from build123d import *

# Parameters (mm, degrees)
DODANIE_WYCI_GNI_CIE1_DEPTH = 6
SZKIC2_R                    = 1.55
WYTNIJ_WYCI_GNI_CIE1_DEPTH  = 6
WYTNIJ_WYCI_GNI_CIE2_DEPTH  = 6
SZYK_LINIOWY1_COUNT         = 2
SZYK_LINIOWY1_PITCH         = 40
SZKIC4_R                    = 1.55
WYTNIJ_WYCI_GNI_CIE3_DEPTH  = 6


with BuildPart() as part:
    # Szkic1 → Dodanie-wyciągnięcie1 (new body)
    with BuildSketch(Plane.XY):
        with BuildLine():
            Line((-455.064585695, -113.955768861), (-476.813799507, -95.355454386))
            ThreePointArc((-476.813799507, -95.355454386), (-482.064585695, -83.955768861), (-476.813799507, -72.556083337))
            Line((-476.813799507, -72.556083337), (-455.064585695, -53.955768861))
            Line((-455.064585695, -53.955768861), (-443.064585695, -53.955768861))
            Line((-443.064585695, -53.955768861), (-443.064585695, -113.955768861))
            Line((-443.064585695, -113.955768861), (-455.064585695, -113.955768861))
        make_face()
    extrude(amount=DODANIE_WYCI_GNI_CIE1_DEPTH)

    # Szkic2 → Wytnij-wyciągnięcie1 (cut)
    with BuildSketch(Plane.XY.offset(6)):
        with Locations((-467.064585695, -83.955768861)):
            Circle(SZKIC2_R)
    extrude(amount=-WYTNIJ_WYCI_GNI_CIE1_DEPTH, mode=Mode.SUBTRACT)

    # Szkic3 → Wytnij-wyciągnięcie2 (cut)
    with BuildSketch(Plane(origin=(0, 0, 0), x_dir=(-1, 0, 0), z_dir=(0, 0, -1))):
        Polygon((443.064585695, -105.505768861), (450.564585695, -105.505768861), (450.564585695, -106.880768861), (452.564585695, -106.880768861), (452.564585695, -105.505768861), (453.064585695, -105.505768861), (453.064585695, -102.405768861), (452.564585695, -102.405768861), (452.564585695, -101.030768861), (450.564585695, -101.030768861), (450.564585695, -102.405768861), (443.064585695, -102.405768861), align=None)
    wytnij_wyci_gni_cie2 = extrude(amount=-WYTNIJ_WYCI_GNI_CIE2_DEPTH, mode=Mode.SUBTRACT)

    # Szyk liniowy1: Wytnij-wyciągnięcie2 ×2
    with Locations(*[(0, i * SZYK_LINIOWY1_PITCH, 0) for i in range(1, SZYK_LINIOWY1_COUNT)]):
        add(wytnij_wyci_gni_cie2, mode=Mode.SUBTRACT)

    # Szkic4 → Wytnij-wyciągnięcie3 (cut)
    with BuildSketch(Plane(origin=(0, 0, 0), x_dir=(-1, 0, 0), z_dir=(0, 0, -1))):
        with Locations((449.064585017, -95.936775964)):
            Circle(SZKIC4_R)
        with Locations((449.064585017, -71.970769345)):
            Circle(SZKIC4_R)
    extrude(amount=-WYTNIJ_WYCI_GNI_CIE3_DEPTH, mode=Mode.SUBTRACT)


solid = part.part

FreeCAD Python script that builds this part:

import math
import FreeCAD as App
import Part
import Sketcher

V = App.Vector

doc = App.newDocument("Part")
params = doc.addObject("Spreadsheet::Sheet", "Params")
for row, (alias, value) in enumerate([
    ("sketch1_radius", "15 mm"),
    ("sketch1_width", "12 mm"),
    ("sketch1_height", "60 mm"),
    ("pad1_length", "6 mm"),
    ("sketch2_diameter", "3.1 mm"),
    ("pocket1_length", "6 mm"),
    ("sketch3_width", "2 mm"),
    ("sketch3_width2", "7.5 mm"),
    ("sketch3_width3", "0.5 mm"),
    ("sketch3_height", "3.1 mm"),
    ("pocket2_length", "6 mm"),
    ("linearpattern_pitch", "40 mm"),
    ("sketch4_diameter", "3.1 mm"),
    ("pocket3_length", "6 mm"),
], start=1):
    params.set(f"A{row}", alias)
    params.set(f"B{row}", "=" + value)
    params.setAlias(f"B{row}", alias)

body = doc.addObject("PartDesign::Body", "Body")

sketch1 = doc.addObject("Sketcher::SketchObject", "Sketch")
body.addObject(sketch1)
sketch1.AttachmentSupport = (doc.XY_Plane, [""])
sketch1.MapMode = "FlatFace"
sketch1.addGeometry(Part.LineSegment(V(-477, -95, 0), V(-455, -114, 0)), False)
sketch1.addGeometry(Part.LineSegment(V(-455, -114, 0), V(-443, -114, 0)), False)
sketch1.addGeometry(Part.LineSegment(V(-443, -114, 0), V(-443, -54, 0)), False)
sketch1.addGeometry(Part.LineSegment(V(-443, -54, 0), V(-455, -54, 0)), False)
sketch1.addGeometry(Part.LineSegment(V(-455, -54, 0), V(-477, -73, 0)), False)
sketch1.addGeometry(Part.ArcOfCircle(Part.Circle(V(-467, -84, 0), V(0, 0, 1), 15), math.radians(131), math.radians(229)), False)
sketch1.addConstraint(Sketcher.Constraint("Coincident", 0, 2, 1, 1))
sketch1.addConstraint(Sketcher.Constraint("Coincident", 1, 2, 2, 1))
sketch1.addConstraint(Sketcher.Constraint("Coincident", 2, 2, 3, 1))
sketch1.addConstraint(Sketcher.Constraint("Coincident", 3, 2, 4, 1))
sketch1.addConstraint(Sketcher.Constraint("Tangent", 4, 2, 5, 1))
sketch1.addConstraint(Sketcher.Constraint("Tangent", 5, 2, 0, 1))
sketch1.addConstraint(Sketcher.Constraint("Horizontal", 1))
sketch1.addConstraint(Sketcher.Constraint("Vertical", 2))
sketch1.addConstraint(Sketcher.Constraint("Horizontal", 3))
sketch1.addConstraint(Sketcher.Constraint("Vertical", 0, 2, 3, 2))
sketch1.addConstraint(Sketcher.Constraint("Vertical", 4, 2, 5, 2))
sketch1.addConstraint(Sketcher.Constraint("Radius", 5, 15.0))
sketch1.addConstraint(Sketcher.Constraint("DistanceX", 1, 1, 1, 2, 12.0))
sketch1.addConstraint(Sketcher.Constraint("DistanceY", 2, 1, 2, 2, 60.0))
sketch1.addConstraint(Sketcher.Constraint("DistanceX", 5, 3, 0, 2, 12.0))
sketch1.addConstraint(Sketcher.Constraint("DistanceX", 4, 2, -1, 1, 476.8138))
sketch1.addConstraint(Sketcher.Constraint("DistanceY", 5, 3, -1, 1, 83.955769))
sketch1.setExpression("Constraints[11]", "Params.sketch1_radius")
sketch1.setExpression("Constraints[12]", "Params.sketch1_width")
sketch1.setExpression("Constraints[13]", "Params.sketch1_height")
pad1 = doc.addObject("PartDesign::Pad", "Pad")
body.addObject(pad1)
pad1.Profile = sketch1
pad1.setExpression("Length", "Params.pad1_length")

sketch2 = doc.addObject("Sketcher::SketchObject", "Sketch001")
body.addObject(sketch2)
sketch2.AttachmentSupport = (doc.XY_Plane, [""])
sketch2.MapMode = "FlatFace"
sketch2.AttachmentOffset = App.Placement(V(0, 0, 6), App.Rotation())
sketch2.addGeometry(Part.Circle(V(-467.1, -84, 0), V(0, 0, 1), 1.6), False)
sketch2.addConstraint(Sketcher.Constraint("Diameter", 0, 3.1))
sketch2.addConstraint(Sketcher.Constraint("DistanceY", 0, 3, -1, 1, 83.955769))
sketch2.addConstraint(Sketcher.Constraint("DistanceX", 0, 3, -1, 1, 467.064586))
sketch2.setExpression("Constraints[0]", "Params.sketch2_diameter")
pocket1 = doc.addObject("PartDesign::Pocket", "Pocket")
body.addObject(pocket1)
pocket1.Profile = sketch2
pocket1.setExpression("Length", "Params.pocket1_length")

sketch3 = doc.addObject("Sketcher::SketchObject", "Sketch002")
body.addObject(sketch3)
sketch3.AttachmentSupport = (doc.XY_Plane, [""])
sketch3.MapMode = "FlatFace"
sketch3.addGeometry(Part.LineSegment(V(-443.1, -105.5, 0), V(-450.6, -105.5, 0)), False)
sketch3.addGeometry(Part.LineSegment(V(-450.6, -105.5, 0), V(-450.6, -106.9, 0)), False)
sketch3.addGeometry(Part.LineSegment(V(-450.6, -106.9, 0), V(-452.6, -106.9, 0)), False)
sketch3.addGeometry(Part.LineSegment(V(-452.6, -106.9, 0), V(-452.6, -105.5, 0)), False)
sketch3.addGeometry(Part.LineSegment(V(-452.6, -105.5, 0), V(-453.1, -105.5, 0)), False)
sketch3.addGeometry(Part.LineSegment(V(-453.1, -105.5, 0), V(-453.1, -102.4, 0)), False)
sketch3.addGeometry(Part.LineSegment(V(-453.1, -102.4, 0), V(-452.6, -102.4, 0)), False)
sketch3.addGeometry(Part.LineSegment(V(-452.6, -102.4, 0), V(-452.6, -101, 0)), False)
sketch3.addGeometry(Part.LineSegment(V(-452.6, -101, 0), V(-450.6, -101, 0)), False)
sketch3.addGeometry(Part.LineSegment(V(-450.6, -101, 0), V(-450.6, -102.4, 0)), False)
sketch3.addGeometry(Part.LineSegment(V(-450.6, -102.4, 0), V(-443.1, -102.4, 0)), False)
sketch3.addGeometry(Part.LineSegment(V(-443.1, -102.4, 0), V(-443.1, -105.5, 0)), False)
sketch3.addConstraint(Sketcher.Constraint("Coincident", 0, 2, 1, 1))
sketch3.addConstraint(Sketcher.Constraint("Coincident", 1, 2, 2, 1))
sketch3.addConstraint(Sketcher.Constraint("Coincident", 2, 2, 3, 1))
sketch3.addConstraint(Sketcher.Constraint("Coincident", 3, 2, 4, 1))
sketch3.addConstraint(Sketcher.Constraint("Coincident", 4, 2, 5, 1))
sketch3.addConstraint(Sketcher.Constraint("Coincident", 5, 2, 6, 1))
sketch3.addConstraint(Sketcher.Constraint("Coincident", 6, 2, 7, 1))
sketch3.addConstraint(Sketcher.Constraint("Coincident", 7, 2, 8, 1))
sketch3.addConstraint(Sketcher.Constraint("Coincident", 8, 2, 9, 1))
sketch3.addConstraint(Sketcher.Constraint("Coincident", 9, 2, 10, 1))
sketch3.addConstraint(Sketcher.Constraint("Coincident", 10, 2, 11, 1))
sketch3.addConstraint(Sketcher.Constraint("Coincident", 11, 2, 0, 1))
sketch3.addConstraint(Sketcher.Constraint("Horizontal", 0))
sketch3.addConstraint(Sketcher.Constraint("Vertical", 1))
sketch3.addConstraint(Sketcher.Constraint("Horizontal", 2))
sketch3.addConstraint(Sketcher.Constraint("Vertical", 3))
sketch3.addConstraint(Sketcher.Constraint("Horizontal", 4))
sketch3.addConstraint(Sketcher.Constraint("Vertical", 5))
sketch3.addConstraint(Sketcher.Constraint("Horizontal", 6))
sketch3.addConstraint(Sketcher.Constraint("Vertical", 7))
sketch3.addConstraint(Sketcher.Constraint("Horizontal", 8))
sketch3.addConstraint(Sketcher.Constraint("Vertical", 9))
sketch3.addConstraint(Sketcher.Constraint("Horizontal", 10))
sketch3.addConstraint(Sketcher.Constraint("Vertical", 11))
sketch3.addConstraint(Sketcher.Constraint("Horizontal", 0, 2, 3, 2))
sketch3.addConstraint(Sketcher.Constraint("Horizontal", 6, 2, 9, 2))
sketch3.addConstraint(Sketcher.Constraint("Vertical", 3, 2, 6, 2))
sketch3.addConstraint(Sketcher.Constraint("Vertical", 1, 2, 8, 2))
sketch3.addConstraint(Sketcher.Constraint("Equal", 3, 7))
sketch3.addConstraint(Sketcher.Constraint("DistanceX", 2, 2, 2, 1, 2.0))
sketch3.addConstraint(Sketcher.Constraint("DistanceX", 0, 2, 0, 1, 7.5))
sketch3.addConstraint(Sketcher.Constraint("DistanceX", 4, 2, 4, 1, 0.5))
sketch3.addConstraint(Sketcher.Constraint("DistanceY", 5, 1, 5, 2, 3.1))
sketch3.addConstraint(Sketcher.Constraint("DistanceY", 1, 2, 1, 1, 1.375))
sketch3.addConstraint(Sketcher.Constraint("DistanceY", 0, 2, -1, 1, 105.505769))
sketch3.addConstraint(Sketcher.Constraint("DistanceX", 0, 2, -1, 1, 450.564586))
sketch3.setExpression("Constraints[29]", "Params.sketch3_width")
sketch3.setExpression("Constraints[30]", "Params.sketch3_width2")
sketch3.setExpression("Constraints[31]", "Params.sketch3_width3")
sketch3.setExpression("Constraints[32]", "Params.sketch3_height")
pocket2 = doc.addObject("PartDesign::Pocket", "Pocket001")
body.addObject(pocket2)
pocket2.Profile = sketch3
pocket2.setExpression("Length", "Params.pocket2_length")
pocket2.Reversed = True
doc.recompute()

linearpattern = doc.addObject("PartDesign::LinearPattern", "LinearPattern")
body.addObject(linearpattern)
linearpattern.Originals = [pocket2]
linearpattern.Direction = (doc.Y_Axis, [""])
linearpattern.Mode = "offset"
linearpattern.setExpression("Offset", "Params.linearpattern_pitch")
linearpattern.Occurrences = 2
body.Tip = linearpattern

sketch4 = doc.addObject("Sketcher::SketchObject", "Sketch003")
body.addObject(sketch4)
sketch4.AttachmentSupport = (doc.XY_Plane, [""])
sketch4.MapMode = "FlatFace"
sketch4.addGeometry(Part.Circle(V(-449.1, -95.9, 0), V(0, 0, 1), 1.6), False)
sketch4.addGeometry(Part.Circle(V(-449.1, -72, 0), V(0, 0, 1), 1.6), False)
sketch4.addConstraint(Sketcher.Constraint("Equal", 0, 1))
sketch4.addConstraint(Sketcher.Constraint("Vertical", 0, 3, 1, 3))
sketch4.addConstraint(Sketcher.Constraint("Diameter", 0, 3.1))
sketch4.addConstraint(Sketcher.Constraint("DistanceY", 1, 3, -1, 1, 71.970769))
sketch4.addConstraint(Sketcher.Constraint("DistanceX", 0, 3, -1, 1, 449.064585))
sketch4.addConstraint(Sketcher.Constraint("DistanceY", 0, 3, -1, 1, 95.936776))
sketch4.setExpression("Constraints[2]", "Params.sketch4_diameter")
pocket3 = doc.addObject("PartDesign::Pocket", "Pocket002")
body.addObject(pocket3)
pocket3.Profile = sketch4
pocket3.setExpression("Length", "Params.pocket3_length")
pocket3.Reversed = True

doc.recompute()
